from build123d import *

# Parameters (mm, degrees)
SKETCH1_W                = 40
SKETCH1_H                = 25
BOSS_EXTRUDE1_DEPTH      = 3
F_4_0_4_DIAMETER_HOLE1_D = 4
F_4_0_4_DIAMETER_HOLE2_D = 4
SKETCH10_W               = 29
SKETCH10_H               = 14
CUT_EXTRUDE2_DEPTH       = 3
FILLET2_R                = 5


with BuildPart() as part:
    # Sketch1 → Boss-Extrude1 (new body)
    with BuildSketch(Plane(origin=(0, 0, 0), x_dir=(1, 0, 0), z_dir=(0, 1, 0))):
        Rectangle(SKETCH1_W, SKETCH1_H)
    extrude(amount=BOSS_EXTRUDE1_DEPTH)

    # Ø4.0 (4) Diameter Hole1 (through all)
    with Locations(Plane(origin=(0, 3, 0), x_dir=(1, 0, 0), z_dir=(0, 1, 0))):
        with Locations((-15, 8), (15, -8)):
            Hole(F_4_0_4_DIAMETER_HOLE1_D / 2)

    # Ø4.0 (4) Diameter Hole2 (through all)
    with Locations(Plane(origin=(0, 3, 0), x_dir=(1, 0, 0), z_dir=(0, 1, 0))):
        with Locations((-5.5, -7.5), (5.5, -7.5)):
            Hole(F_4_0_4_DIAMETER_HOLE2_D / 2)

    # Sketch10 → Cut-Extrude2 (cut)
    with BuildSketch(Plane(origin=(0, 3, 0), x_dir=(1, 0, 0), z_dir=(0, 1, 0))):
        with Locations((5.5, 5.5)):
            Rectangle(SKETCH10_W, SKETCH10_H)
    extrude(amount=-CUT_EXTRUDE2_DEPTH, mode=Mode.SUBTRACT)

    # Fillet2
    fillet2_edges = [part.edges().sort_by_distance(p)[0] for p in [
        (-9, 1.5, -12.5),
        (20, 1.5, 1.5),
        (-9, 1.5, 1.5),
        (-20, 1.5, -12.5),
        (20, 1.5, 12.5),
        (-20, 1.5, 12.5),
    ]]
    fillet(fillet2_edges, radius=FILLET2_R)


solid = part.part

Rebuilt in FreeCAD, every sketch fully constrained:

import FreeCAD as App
import Part
import Sketcher
from FreeCAD import Vector
Q = App.Units.Quantity


def edges_at(feature, points):
    """Names of the edges that pass closest to the given points."""
    edges = feature.Shape.Edges
    near = lambda p: min(range(len(edges)), key=lambda i: edges[i].distToShape(Part.Vertex(*p))[0])
    return sorted({f"Edge{near(p) + 1}" for p in points})


def add_polygon(sketch, points):
    """Adds a closed chain of lines whose ends are joined by coincident constraints."""
    first, n = sketch.GeometryCount, len(points)
    for a, b in zip(points, points[1:] + points[:1]):
        sketch.addGeometry(Part.LineSegment(App.Vector(*a, 0), App.Vector(*b, 0)), False)
    for i in range(n):
        sketch.addConstraint(Sketcher.Constraint("Coincident", first + i, 2, first + (i + 1) % n, 1))

doc = App.newDocument("Part")
body = doc.addObject("PartDesign::Body", "Body")

sketch1 = doc.addObject("Sketcher::SketchObject", "Sketch")
body.addObject(sketch1)
sketch1.AttachmentSupport = (doc.XZ_Plane, [""])
sketch1.MapMode = "FlatFace"
add_polygon(sketch1, [(-20, -12), (-20, 12), (20, 12), (20, -12)])
sketch1.addConstraint(Sketcher.Constraint("Vertical", 0))
sketch1.addConstraint(Sketcher.Constraint("Horizontal", 1))
sketch1.addConstraint(Sketcher.Constraint("Vertical", 2))
sketch1.addConstraint(Sketcher.Constraint("Horizontal", 3))
sketch1.addConstraint(Sketcher.Constraint("Symmetric", 0, 2, 2, 2, -1, 1))
sketch1.addConstraint(Sketcher.Constraint("DistanceX", 1, 1, 1, 2, Q("40 mm")))
sketch1.addConstraint(Sketcher.Constraint("DistanceY", 0, 1, 0, 2, Q("25 mm")))
pad1 = doc.addObject("PartDesign::Pad", "Pad")
body.addObject(pad1)
pad1.Profile = sketch1
pad1.Length = 3
pad1.Reversed = True

sketch2 = doc.addObject("Sketcher::SketchObject", "Sketch001")
body.addObject(sketch2)
sketch2.AttachmentSupport = (doc.XZ_Plane, [""])
sketch2.MapMode = "FlatFace"
sketch2.AttachmentOffset = App.Placement(Vector(0, 0, -3), App.Rotation())
sketch2.addGeometry(Part.Circle(Vector(-15, -8, 0), Vector(0, 0, 1), 2), False)
sketch2.addGeometry(Part.Circle(Vector(15, 8, 0), Vector(0, 0, 1), 2), False)
sketch2.addConstraint(Sketcher.Constraint("Equal", 0, 1))
sketch2.addConstraint(Sketcher.Constraint("Symmetric", 0, 3, 1, 3, -1, 1))
sketch2.addConstraint(Sketcher.Constraint("Diameter", 0, Q("4 mm")))
sketch2.addConstraint(Sketcher.Constraint("DistanceX", 0, 3, -1, 1, Q("15 mm")))
sketch2.addConstraint(Sketcher.Constraint("DistanceY", 0, 3, -1, 1, Q("8 mm")))
doc.recompute()
hole = doc.addObject("PartDesign::Hole", "Hole")
body.addObject(hole)
hole.Profile = sketch2
hole.ThreadType = "None"
hole.Diameter = 4
hole.DepthType = "ThroughAll"
hole.Reversed = True

sketch3 = doc.addObject("Sketcher::SketchObject", "Sketch002")
body.addObject(sketch3)
sketch3.AttachmentSupport = (doc.XZ_Plane, [""])
sketch3.MapMode = "FlatFace"
sketch3.AttachmentOffset = App.Placement(Vector(0, 0, -3), App.Rotation())
sketch3.addGeometry(Part.Circle(Vector(-5.5, 7.5, 0), Vector(0, 0, 1), 2), False)
sketch3.addGeometry(Part.Circle(Vector(5.5, 7.5, 0), Vector(0, 0, 1), 2), False)
sketch3.addConstraint(Sketcher.Constraint("Equal", 0, 1))
sketch3.addConstraint(Sketcher.Constraint("Symmetric", 0, 3, 1, 3, -2))
sketch3.addConstraint(Sketcher.Constraint("Diameter", 0, Q("4 mm")))
sketch3.addConstraint(Sketcher.Constraint("DistanceX", 0, 3, 1, 3, Q("11 mm")))
sketch3.addConstraint(Sketcher.Constraint("DistanceY", -1, 1, 0, 3, Q("7.5 mm")))
doc.recompute()
hole2 = doc.addObject("PartDesign::Hole", "Hole001")
body.addObject(hole2)
hole2.Profile = sketch3
hole2.ThreadType = "None"
hole2.Diameter = 4
hole2.DepthType = "ThroughAll"
hole2.Reversed = True

sketch4 = doc.addObject("Sketcher::SketchObject", "Sketch003")
body.addObject(sketch4)
sketch4.AttachmentSupport = (doc.XZ_Plane, [""])
sketch4.MapMode = "FlatFace"
sketch4.AttachmentOffset = App.Placement(Vector(0, 0, -3), App.Rotation())
add_polygon(sketch4, [(-9, -12), (-9, 2), (20, 2), (20, -12)])
sketch4.addConstraint(Sketcher.Constraint("Vertical", 0))
sketch4.addConstraint(Sketcher.Constraint("Horizontal", 1))
sketch4.addConstraint(Sketcher.Constraint("Vertical", 2))
sketch4.addConstraint(Sketcher.Constraint("Horizontal", 3))
sketch4.addConstraint(Sketcher.Constraint("DistanceX", 1, 1, 1, 2, Q("29 mm")))
sketch4.addConstraint(Sketcher.Constraint("DistanceY", 0, 1, 0, 2, Q("14 mm")))
sketch4.addConstraint(Sketcher.Constraint("DistanceX", 0, 2, -1, 1, Q("9 mm")))
sketch4.addConstraint(Sketcher.Constraint("DistanceY", -1, 1, 0, 2, Q("1.5 mm")))
pocket1 = doc.addObject("PartDesign::Pocket", "Pocket")
body.addObject(pocket1)
pocket1.Profile = sketch4
pocket1.Length = 3
pocket1.Reversed = True
doc.recompute()

fillet = doc.addObject("PartDesign::Fillet", "Fillet")
body.addObject(fillet)
fillet.Base = (pocket1, edges_at(pocket1, [
    (-9, 1.5, -12.5),
    (20, 1.5, 1.5),
    (-9, 1.5, 1.5),
    (-20, 1.5, -12.5),
    (20, 1.5, 12.5),
    (-20, 1.5, 12.5),
]))
fillet.Radius = 5

doc.recompute()
